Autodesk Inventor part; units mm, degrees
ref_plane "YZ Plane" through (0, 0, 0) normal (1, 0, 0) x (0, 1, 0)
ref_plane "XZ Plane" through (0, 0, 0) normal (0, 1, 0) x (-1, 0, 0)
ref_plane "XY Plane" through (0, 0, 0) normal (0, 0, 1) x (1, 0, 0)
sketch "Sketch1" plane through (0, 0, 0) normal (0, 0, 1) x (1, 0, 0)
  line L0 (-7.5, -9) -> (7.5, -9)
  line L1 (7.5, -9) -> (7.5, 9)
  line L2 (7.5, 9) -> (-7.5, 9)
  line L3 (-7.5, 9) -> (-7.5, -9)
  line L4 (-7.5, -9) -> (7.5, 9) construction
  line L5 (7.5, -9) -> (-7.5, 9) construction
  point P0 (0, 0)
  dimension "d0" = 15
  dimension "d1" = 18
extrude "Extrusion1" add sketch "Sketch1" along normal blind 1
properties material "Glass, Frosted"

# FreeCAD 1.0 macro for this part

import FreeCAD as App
import Part
import Sketcher
from FreeCAD import Vector

doc = App.newDocument("Part")
body = doc.addObject("PartDesign::Body", "Body")

sketch1 = doc.addObject("Sketcher::SketchObject", "Sketch")
body.addObject(sketch1)
sketch1.AttachmentSupport = (doc.XY_Plane, [""])
sketch1.MapMode = "FlatFace"
sketch1.addGeometry(Part.LineSegment(Vector(-7.5, 9, 0), Vector(-7.5, -9, 0)), False)
sketch1.addGeometry(Part.LineSegment(Vector(-7.5, -9, 0), Vector(7.5, -9, 0)), False)
sketch1.addGeometry(Part.LineSegment(Vector(7.5, -9, 0), Vector(7.5, 9, 0)), False)
sketch1.addGeometry(Part.LineSegment(Vector(7.5, 9, 0), Vector(-7.5, 9, 0)), False)
sketch1.addConstraint(Sketcher.Constraint("Coincident", 0, 2, 1, 1))
sketch1.addConstraint(Sketcher.Constraint("Coincident", 1, 2, 2, 1))
sketch1.addConstraint(Sketcher.Constraint("Coincident", 2, 2, 3, 1))
sketch1.addConstraint(Sketcher.Constraint("Coincident", 3, 2, 0, 1))
sketch1.addConstraint(Sketcher.Constraint("Vertical", 0))
sketch1.addConstraint(Sketcher.Constraint("Horizontal", 1))
sketch1.addConstraint(Sketcher.Constraint("Vertical", 2))
sketch1.addConstraint(Sketcher.Constraint("Horizontal", 3))
sketch1.addConstraint(Sketcher.Constraint("Symmetric", 0, 2, 2, 2, -1, 1))
sketch1.addConstraint(Sketcher.Constraint("DistanceX", 1, 1, 1, 2, 15.0))
sketch1.addConstraint(Sketcher.Constraint("DistanceY", 0, 2, 0, 1, 18.0))
pad1 = doc.addObject("PartDesign::Pad", "Pad")
body.addObject(pad1)
pad1.Profile = sketch1
pad1.Length = 1

doc.recompute()
